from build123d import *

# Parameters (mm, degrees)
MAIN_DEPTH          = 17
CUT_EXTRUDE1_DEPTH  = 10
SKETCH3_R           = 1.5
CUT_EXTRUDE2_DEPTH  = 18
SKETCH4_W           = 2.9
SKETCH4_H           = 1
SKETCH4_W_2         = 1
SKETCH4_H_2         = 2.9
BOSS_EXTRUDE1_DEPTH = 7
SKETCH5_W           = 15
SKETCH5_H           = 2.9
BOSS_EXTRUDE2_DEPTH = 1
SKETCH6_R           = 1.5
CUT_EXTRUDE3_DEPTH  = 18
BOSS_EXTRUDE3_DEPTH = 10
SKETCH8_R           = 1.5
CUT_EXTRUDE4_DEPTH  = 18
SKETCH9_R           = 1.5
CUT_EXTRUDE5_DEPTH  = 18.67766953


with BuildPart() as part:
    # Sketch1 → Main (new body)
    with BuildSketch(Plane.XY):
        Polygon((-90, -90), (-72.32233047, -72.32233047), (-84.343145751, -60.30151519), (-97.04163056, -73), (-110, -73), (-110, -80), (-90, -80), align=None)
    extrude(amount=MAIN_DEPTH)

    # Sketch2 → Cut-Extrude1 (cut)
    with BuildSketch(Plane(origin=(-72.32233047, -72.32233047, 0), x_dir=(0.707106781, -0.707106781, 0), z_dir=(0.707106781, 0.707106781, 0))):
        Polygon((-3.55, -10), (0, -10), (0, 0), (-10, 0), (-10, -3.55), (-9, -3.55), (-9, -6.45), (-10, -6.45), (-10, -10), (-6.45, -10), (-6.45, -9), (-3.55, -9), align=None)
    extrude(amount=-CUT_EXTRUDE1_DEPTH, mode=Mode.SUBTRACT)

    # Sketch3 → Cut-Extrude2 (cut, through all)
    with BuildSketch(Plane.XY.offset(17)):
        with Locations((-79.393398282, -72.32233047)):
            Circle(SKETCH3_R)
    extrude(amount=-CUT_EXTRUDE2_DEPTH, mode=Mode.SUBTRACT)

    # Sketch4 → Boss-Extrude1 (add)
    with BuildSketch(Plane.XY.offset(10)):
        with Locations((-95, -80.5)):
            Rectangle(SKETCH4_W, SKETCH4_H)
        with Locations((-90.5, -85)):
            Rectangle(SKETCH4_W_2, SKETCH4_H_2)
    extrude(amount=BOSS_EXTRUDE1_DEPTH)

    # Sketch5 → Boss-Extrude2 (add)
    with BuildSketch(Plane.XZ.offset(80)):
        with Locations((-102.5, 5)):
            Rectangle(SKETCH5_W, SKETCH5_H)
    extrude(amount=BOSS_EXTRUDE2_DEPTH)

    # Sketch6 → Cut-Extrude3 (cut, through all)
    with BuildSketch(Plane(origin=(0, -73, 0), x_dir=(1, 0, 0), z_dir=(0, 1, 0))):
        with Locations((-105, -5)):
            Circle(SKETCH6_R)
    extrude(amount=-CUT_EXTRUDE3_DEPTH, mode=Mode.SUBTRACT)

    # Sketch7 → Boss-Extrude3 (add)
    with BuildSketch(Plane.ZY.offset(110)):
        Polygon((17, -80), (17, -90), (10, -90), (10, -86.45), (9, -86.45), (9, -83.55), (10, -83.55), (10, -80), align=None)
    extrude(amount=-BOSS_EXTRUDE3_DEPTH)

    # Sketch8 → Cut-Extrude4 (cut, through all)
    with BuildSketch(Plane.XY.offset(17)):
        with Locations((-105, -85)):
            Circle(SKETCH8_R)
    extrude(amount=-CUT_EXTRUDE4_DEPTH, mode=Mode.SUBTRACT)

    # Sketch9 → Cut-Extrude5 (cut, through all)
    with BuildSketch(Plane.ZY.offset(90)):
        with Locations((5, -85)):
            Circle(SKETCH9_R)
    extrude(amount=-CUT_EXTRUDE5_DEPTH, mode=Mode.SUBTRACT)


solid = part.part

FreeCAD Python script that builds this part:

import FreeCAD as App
import Part
import Sketcher
from FreeCAD import Vector
Q = App.Units.Quantity

doc = App.newDocument("Part")
body = doc.addObject("PartDesign::Body", "Body")

sketch1 = doc.addObject("Sketcher::SketchObject", "Sketch")
body.addObject(sketch1)
sketch1.AttachmentSupport = (doc.XY_Plane, [""])
sketch1.MapMode = "FlatFace"
sketch1.addGeometry([
    Part.LineSegment(Vector(-90, -90, 0), Vector(-72.32233, -72.32233, 0)),
    Part.LineSegment(Vector(-72.32233, -72.32233, 0), Vector(-84.343146, -60.301515, 0)),
    Part.LineSegment(Vector(-84.343146, -60.301515, 0), Vector(-97.041631, -73, 0)),
    Part.LineSegment(Vector(-97.041631, -73, 0), Vector(-110, -73, 0)),
    Part.LineSegment(Vector(-110, -73, 0), Vector(-110, -80, 0)),
    Part.LineSegment(Vector(-110, -80, 0), Vector(-90, -80, 0)),
    Part.LineSegment(Vector(-90, -80, 0), Vector(-90, -90, 0)),
], False)
sketch1.addConstraint([
    Sketcher.Constraint("Coincident", 0, 2, 1, 1),
    Sketcher.Constraint("Coincident", 1, 2, 2, 1),
    Sketcher.Constraint("Coincident", 2, 2, 3, 1),
    Sketcher.Constraint("Coincident", 3, 2, 4, 1),
    Sketcher.Constraint("Coincident", 4, 2, 5, 1),
    Sketcher.Constraint("Coincident", 5, 2, 6, 1),
    Sketcher.Constraint("Coincident", 6, 2, 0, 1),
    Sketcher.Constraint("Horizontal", 3),
    Sketcher.Constraint("Vertical", 4),
    Sketcher.Constraint("Horizontal", 5),
    Sketcher.Constraint("Vertical", 6),
    Sketcher.Constraint("Perpendicular", 0, 1),
    Sketcher.Constraint("Perpendicular", 1, 2),
    Sketcher.Constraint("DistanceX", 5, 1, 5, 2, 20.0),
    Sketcher.Constraint("DistanceY", 4, 2, 4, 1, 7.0),
    Sketcher.Constraint("DistanceY", 6, 2, 6, 1, 10.0),
    Sketcher.Constraint("Angle", 0, Q("45 deg")),
    Sketcher.Constraint("Distance", 0, 25.0),
    Sketcher.Constraint("Distance", 1, 17.0),
    Sketcher.Constraint("DistanceY", 2, 2, -1, 1, 73.0),
    Sketcher.Constraint("DistanceX", 3, 2, -1, 1, 110.0),
])
pad1 = doc.addObject("PartDesign::Pad", "Pad")
body.addObject(pad1)
pad1.Profile = sketch1
pad1.Length = 17

sketch2 = doc.addObject("Sketcher::SketchObject", "Sketch001")
body.addObject(sketch2)
sketch2.Placement = App.Placement(Vector(-72.32233, -72.32233, 0), App.Rotation(Vector(0.707106781, -0.707106781, 0), Vector(0, 0, -0.999999999), Vector(0.707106781, 0.707106781, 0), "ZXY"))
sketch2.addGeometry([
    Part.LineSegment(Vector(-3.55, -10, 0), Vector(0, -10, 0)),
    Part.LineSegment(Vector(0, -10, 0), Vector(0, 0, 0)),
    Part.LineSegment(Vector(0, 0, 0), Vector(-10, 0, 0)),
    Part.LineSegment(Vector(-10, 0, 0), Vector(-10, -3.55, 0)),
    Part.LineSegment(Vector(-10, -3.55, 0), Vector(-9, -3.55, 0)),
    Part.LineSegment(Vector(-9, -3.55, 0), Vector(-9, -6.45, 0)),
    Part.LineSegment(Vector(-9, -6.45, 0), Vector(-10, -6.45, 0)),
    Part.LineSegment(Vector(-10, -6.45, 0), Vector(-10, -10, 0)),
    Part.LineSegment(Vector(-10, -10, 0), Vector(-6.45, -10, 0)),
    Part.LineSegment(Vector(-6.45, -10, 0), Vector(-6.45, -9, 0)),
    Part.LineSegment(Vector(-6.45, -9, 0), Vector(-3.55, -9, 0)),
    Part.LineSegment(Vector(-3.55, -9, 0), Vector(-3.55, -10, 0)),
], False)
sketch2.addConstraint([
    Sketcher.Constraint("Coincident", 0, 2, 1, 1),
    Sketcher.Constraint("Coincident", 1, 2, 2, 1),
    Sketcher.Constraint("Coincident", 2, 2, 3, 1),
    Sketcher.Constraint("Coincident", 3, 2, 4, 1),
    Sketcher.Constraint("Coincident", 4, 2, 5, 1),
    Sketcher.Constraint("Coincident", 5, 2, 6, 1),
    Sketcher.Constraint("Coincident", 6, 2, 7, 1),
    Sketcher.Constraint("Coincident", 7, 2, 8, 1),
    Sketcher.Constraint("Coincident", 8, 2, 9, 1),
    Sketcher.Constraint("Coincident", 9, 2, 10, 1),
    Sketcher.Constraint("Coincident", 10, 2, 11, 1),
    Sketcher.Constraint("Coincident", 11, 2, 0, 1),
    Sketcher.Constraint("Horizontal", 0),
    Sketcher.Constraint("Vertical", 1),
    Sketcher.Constraint("Horizontal", 2),
    Sketcher.Constraint("Vertical", 3),
    Sketcher.Constraint("Horizontal", 4),
    Sketcher.Constraint("Vertical", 5),
    Sketcher.Constraint("Horizontal", 6),
    Sketcher.Constraint("Vertical", 7),
    Sketcher.Constraint("Horizontal", 8),
    Sketcher.Constraint("Vertical", 9),
    Sketcher.Constraint("Horizontal", 10),
    Sketcher.Constraint("Vertical", 11),
    Sketcher.Constraint("Coincident", 1, 2, -1, 1),
    Sketcher.Constraint("Horizontal", 0, 2, 7, 2),
    Sketcher.Constraint("Vertical", 3, 2, 6, 2),
    Sketcher.Constraint("Equal", 0, 8),
    Sketcher.Constraint("Equal", 2, 1),
    Sketcher.Constraint("Equal", 8, 3),
    Sketcher.Constraint("Equal", 10, 5),
    Sketcher.Constraint("Equal", 6, 9),
    Sketcher.Constraint("DistanceX", 2, 2, 2, 1, 10.0),
    Sketcher.Constraint("DistanceX", 4, 1, 4, 2, 1.0),
    Sketcher.Constraint("DistanceX", 10, 1, 10, 2, 2.9),
])
pocket1 = doc.addObject("PartDesign::Pocket", "Pocket")
body.addObject(pocket1)
pocket1.Profile = sketch2
pocket1.Length = 10

sketch3 = doc.addObject("Sketcher::SketchObject", "Sketch002")
body.addObject(sketch3)
sketch3.AttachmentSupport = (doc.XY_Plane, [""])
sketch3.MapMode = "FlatFace"
sketch3.AttachmentOffset = App.Placement(Vector(0, 0, 17), App.Rotation())
sketch3.addGeometry(Part.Circle(Vector(-79.393398, -72.32233, 0), Vector(0, 0, 1), 1.5), False)
sketch3.addConstraint([
    Sketcher.Constraint("Diameter", 0, 3.0),
    Sketcher.Constraint("DistanceX", 0, 3, -1, 1, 79.393398),
    Sketcher.Constraint("DistanceY", 0, 3, -1, 1, 72.32233),
])
pocket2 = doc.addObject("PartDesign::Pocket", "Pocket001")
body.addObject(pocket2)
pocket2.Profile = sketch3
pocket2.Type = "ThroughAll"

sketch4 = doc.addObject("Sketcher::SketchObject", "Sketch003")
body.addObject(sketch4)
sketch4.AttachmentSupport = (doc.XY_Plane, [""])
sketch4.MapMode = "FlatFace"
sketch4.AttachmentOffset = App.Placement(Vector(0, 0, 10), App.Rotation())
sketch4.addGeometry([
    Part.LineSegment(Vector(-96.45, -80, 0), Vector(-96.45, -81, 0)),
    Part.LineSegment(Vector(-96.45, -81, 0), Vector(-93.55, -81, 0)),
    Part.LineSegment(Vector(-93.55, -81, 0), Vector(-93.55, -80, 0)),
    Part.LineSegment(Vector(-93.55, -80, 0), Vector(-96.45, -80, 0)),
    Part.LineSegment(Vector(-91, -83.55, 0), Vector(-91, -86.45, 0)),
    Part.LineSegment(Vector(-91, -86.45, 0), Vector(-90, -86.45, 0)),
    Part.LineSegment(Vector(-90, -86.45, 0), Vector(-90, -83.55, 0)),
    Part.LineSegment(Vector(-90, -83.55, 0), Vector(-91, -83.55, 0)),
], False)
sketch4.addConstraint([
    Sketcher.Constraint("Coincident", 0, 2, 1, 1),
    Sketcher.Constraint("Coincident", 1, 2, 2, 1),
    Sketcher.Constraint("Coincident", 2, 2, 3, 1),
    Sketcher.Constraint("Coincident", 3, 2, 0, 1),
    Sketcher.Constraint("Coincident", 4, 2, 5, 1),
    Sketcher.Constraint("Coincident", 5, 2, 6, 1),
    Sketcher.Constraint("Coincident", 6, 2, 7, 1),
    Sketcher.Constraint("Coincident", 7, 2, 4, 1),
    Sketcher.Constraint("Vertical", 0),
    Sketcher.Constraint("Horizontal", 1),
    Sketcher.Constraint("Vertical", 2),
    Sketcher.Constraint("Horizontal", 3),
    Sketcher.Constraint("Vertical", 4),
    Sketcher.Constraint("Horizontal", 5),
    Sketcher.Constraint("Vertical", 6),
    Sketcher.Constraint("Horizontal", 7),
    Sketcher.Constraint("Equal", 7, 0),
    Sketcher.Constraint("Equal", 3, 4),
    Sketcher.Constraint("DistanceX", 5, 1, 5, 2, 1.0),
    Sketcher.Constraint("DistanceX", 1, 1, 1, 2, 2.9),
    Sketcher.Constraint("DistanceY", 0, 2, -1, 1, 81.0),
    Sketcher.Constraint("DistanceX", 4, 2, -1, 1, 91.0),
    Sketcher.Constraint("DistanceX", 0, 2, -1, 1, 96.45),
    Sketcher.Constraint("DistanceY", 4, 2, -1, 1, 86.45),
])
pad2 = doc.addObject("PartDesign::Pad", "Pad001")
body.addObject(pad2)
pad2.Profile = sketch4
pad2.Length = 7

sketch5 = doc.addObject("Sketcher::SketchObject", "Sketch004")
body.addObject(sketch5)
sketch5.AttachmentSupport = (doc.XZ_Plane, [""])
sketch5.MapMode = "FlatFace"
sketch5.AttachmentOffset = App.Placement(Vector(0, 0, 80), App.Rotation())
sketch5.addGeometry([
    Part.LineSegment(Vector(-110, 6.45, 0), Vector(-110, 3.55, 0)),
    Part.LineSegment(Vector(-110, 3.55, 0), Vector(-95, 3.55, 0)),
    Part.LineSegment(Vector(-95, 3.55, 0), Vector(-95, 6.45, 0)),
    Part.LineSegment(Vector(-95, 6.45, 0), Vector(-110, 6.45, 0)),
], False)
sketch5.addConstraint([
    Sketcher.Constraint("Coincident", 0, 2, 1, 1),
    Sketcher.Constraint("Coincident", 1, 2, 2, 1),
    Sketcher.Constraint("Coincident", 2, 2, 3, 1),
    Sketcher.Constraint("Coincident", 3, 2, 0, 1),
    Sketcher.Constraint("Vertical", 0),
    Sketcher.Constraint("Horizontal", 1),
    Sketcher.Constraint("Vertical", 2),
    Sketcher.Constraint("Horizontal", 3),
    Sketcher.Constraint("DistanceX", 1, 1, 1, 2, 15.0),
    Sketcher.Constraint("DistanceY", 0, 2, 0, 1, 2.9),
    Sketcher.Constraint("DistanceX", 0, 2, -1, 1, 110.0),
    Sketcher.Constraint("DistanceY", -1, 1, 0, 2, 3.55),
])
pad3 = doc.addObject("PartDesign::Pad", "Pad002")
body.addObject(pad3)
pad3.Profile = sketch5
pad3.Length = 1

sketch6 = doc.addObject("Sketcher::SketchObject", "Sketch005")
body.addObject(sketch6)
sketch6.AttachmentSupport = (doc.XZ_Plane, [""])
sketch6.MapMode = "FlatFace"
sketch6.AttachmentOffset = App.Placement(Vector(0, 0, 73), App.Rotation())
sketch6.addGeometry(Part.Circle(Vector(-105, 5, 0), Vector(0, 0, 1), 1.5), False)
sketch6.addConstraint([
    Sketcher.Constraint("Diameter", 0, 3.0),
    Sketcher.Constraint("DistanceX", 0, 3, -1, 1, 105.0),
    Sketcher.Constraint("DistanceY", -1, 1, 0, 3, 5.0),
])
pocket3 = doc.addObject("PartDesign::Pocket", "Pocket002")
body.addObject(pocket3)
pocket3.Profile = sketch6
pocket3.Type = "ThroughAll"
pocket3.Reversed = True

sketch7 = doc.addObject("Sketcher::SketchObject", "Sketch006")
body.addObject(sketch7)
sketch7.AttachmentSupport = (doc.YZ_Plane, [""])
sketch7.MapMode = "FlatFace"
sketch7.AttachmentOffset = App.Placement(Vector(0, 0, -110), App.Rotation())
sketch7.addGeometry([
    Part.LineSegment(Vector(-90, 17, 0), Vector(-80, 17, 0)),
    Part.LineSegment(Vector(-80, 17, 0), Vector(-80, 10, 0)),
    Part.LineSegment(Vector(-80, 10, 0), Vector(-83.55, 10, 0)),
    Part.LineSegment(Vector(-83.55, 10, 0), Vector(-83.55, 9, 0)),
    Part.LineSegment(Vector(-83.55, 9, 0), Vector(-86.45, 9, 0)),
    Part.LineSegment(Vector(-86.45, 9, 0), Vector(-86.45, 10, 0)),
    Part.LineSegment(Vector(-86.45, 10, 0), Vector(-90, 10, 0)),
    Part.LineSegment(Vector(-90, 10, 0), Vector(-90, 17, 0)),
], False)
sketch7.addConstraint([
    Sketcher.Constraint("Coincident", 0, 2, 1, 1),
    Sketcher.Constraint("Coincident", 1, 2, 2, 1),
    Sketcher.Constraint("Coincident", 2, 2, 3, 1),
    Sketcher.Constraint("Coincident", 3, 2, 4, 1),
    Sketcher.Constraint("Coincident", 4, 2, 5, 1),
    Sketcher.Constraint("Coincident", 5, 2, 6, 1),
    Sketcher.Constraint("Coincident", 6, 2, 7, 1),
    Sketcher.Constraint("Coincident", 7, 2, 0, 1),
    Sketcher.Constraint("Horizontal", 0),
    Sketcher.Constraint("Vertical", 1),
    Sketcher.Constraint("Horizontal", 2),
    Sketcher.Constraint("Vertical", 3),
    Sketcher.Constraint("Horizontal", 4),
    Sketcher.Constraint("Vertical", 5),
    Sketcher.Constraint("Horizontal", 6),
    Sketcher.Constraint("Vertical", 7),
    Sketcher.Constraint("Horizontal", 2, 2, 5, 2),
    Sketcher.Constraint("Equal", 2, 6),
    Sketcher.Constraint("DistanceX", 0, 1, 0, 2, 10.0),
    Sketcher.Constraint("DistanceY", 1, 2, 1, 1, 7.0),
    Sketcher.Constraint("DistanceY", 3, 2, 3, 1, 1.0),
    Sketcher.Constraint("DistanceX", 4, 2, 4, 1, 2.9),
    Sketcher.Constraint("DistanceX", 0, 2, -1, 1, 80.0),
    Sketcher.Constraint("DistanceY", -1, 1, 0, 2, 17.0),
])
pad4 = doc.addObject("PartDesign::Pad", "Pad003")
body.addObject(pad4)
pad4.Profile = sketch7
pad4.Length = 10

sketch8 = doc.addObject("Sketcher::SketchObject", "Sketch007")
body.addObject(sketch8)
sketch8.AttachmentSupport = (doc.XY_Plane, [""])
sketch8.MapMode = "FlatFace"
sketch8.AttachmentOffset = App.Placement(Vector(0, 0, 17), App.Rotation())
sketch8.addGeometry(Part.Circle(Vector(-105, -85, 0), Vector(0, 0, 1), 1.5), False)
sketch8.addConstraint([
    Sketcher.Constraint("Diameter", 0, 3.0),
    Sketcher.Constraint("DistanceX", 0, 3, -1, 1, 105.0),
    Sketcher.Constraint("DistanceY", 0, 3, -1, 1, 85.0),
])
pocket4 = doc.addObject("PartDesign::Pocket", "Pocket003")
body.addObject(pocket4)
pocket4.Profile = sketch8
pocket4.Type = "ThroughAll"

sketch9 = doc.addObject("Sketcher::SketchObject", "Sketch008")
body.addObject(sketch9)
sketch9.AttachmentSupport = (doc.YZ_Plane, [""])
sketch9.MapMode = "FlatFace"
sketch9.AttachmentOffset = App.Placement(Vector(0, 0, -90), App.Rotation())
sketch9.addGeometry(Part.Circle(Vector(-85, 5, 0), Vector(0, 0, 1), 1.5), False)
sketch9.addConstraint([
    Sketcher.Constraint("Diameter", 0, 3.0),
    Sketcher.Constraint("DistanceX", 0, 3, -1, 1, 85.0),
    Sketcher.Constraint("DistanceY", -1, 1, 0, 3, 5.0),
])
pocket5 = doc.addObject("PartDesign::Pocket", "Pocket004")
body.addObject(pocket5)
pocket5.Profile = sketch9
pocket5.Type = "ThroughAll"
pocket5.Reversed = True

doc.recompute()
